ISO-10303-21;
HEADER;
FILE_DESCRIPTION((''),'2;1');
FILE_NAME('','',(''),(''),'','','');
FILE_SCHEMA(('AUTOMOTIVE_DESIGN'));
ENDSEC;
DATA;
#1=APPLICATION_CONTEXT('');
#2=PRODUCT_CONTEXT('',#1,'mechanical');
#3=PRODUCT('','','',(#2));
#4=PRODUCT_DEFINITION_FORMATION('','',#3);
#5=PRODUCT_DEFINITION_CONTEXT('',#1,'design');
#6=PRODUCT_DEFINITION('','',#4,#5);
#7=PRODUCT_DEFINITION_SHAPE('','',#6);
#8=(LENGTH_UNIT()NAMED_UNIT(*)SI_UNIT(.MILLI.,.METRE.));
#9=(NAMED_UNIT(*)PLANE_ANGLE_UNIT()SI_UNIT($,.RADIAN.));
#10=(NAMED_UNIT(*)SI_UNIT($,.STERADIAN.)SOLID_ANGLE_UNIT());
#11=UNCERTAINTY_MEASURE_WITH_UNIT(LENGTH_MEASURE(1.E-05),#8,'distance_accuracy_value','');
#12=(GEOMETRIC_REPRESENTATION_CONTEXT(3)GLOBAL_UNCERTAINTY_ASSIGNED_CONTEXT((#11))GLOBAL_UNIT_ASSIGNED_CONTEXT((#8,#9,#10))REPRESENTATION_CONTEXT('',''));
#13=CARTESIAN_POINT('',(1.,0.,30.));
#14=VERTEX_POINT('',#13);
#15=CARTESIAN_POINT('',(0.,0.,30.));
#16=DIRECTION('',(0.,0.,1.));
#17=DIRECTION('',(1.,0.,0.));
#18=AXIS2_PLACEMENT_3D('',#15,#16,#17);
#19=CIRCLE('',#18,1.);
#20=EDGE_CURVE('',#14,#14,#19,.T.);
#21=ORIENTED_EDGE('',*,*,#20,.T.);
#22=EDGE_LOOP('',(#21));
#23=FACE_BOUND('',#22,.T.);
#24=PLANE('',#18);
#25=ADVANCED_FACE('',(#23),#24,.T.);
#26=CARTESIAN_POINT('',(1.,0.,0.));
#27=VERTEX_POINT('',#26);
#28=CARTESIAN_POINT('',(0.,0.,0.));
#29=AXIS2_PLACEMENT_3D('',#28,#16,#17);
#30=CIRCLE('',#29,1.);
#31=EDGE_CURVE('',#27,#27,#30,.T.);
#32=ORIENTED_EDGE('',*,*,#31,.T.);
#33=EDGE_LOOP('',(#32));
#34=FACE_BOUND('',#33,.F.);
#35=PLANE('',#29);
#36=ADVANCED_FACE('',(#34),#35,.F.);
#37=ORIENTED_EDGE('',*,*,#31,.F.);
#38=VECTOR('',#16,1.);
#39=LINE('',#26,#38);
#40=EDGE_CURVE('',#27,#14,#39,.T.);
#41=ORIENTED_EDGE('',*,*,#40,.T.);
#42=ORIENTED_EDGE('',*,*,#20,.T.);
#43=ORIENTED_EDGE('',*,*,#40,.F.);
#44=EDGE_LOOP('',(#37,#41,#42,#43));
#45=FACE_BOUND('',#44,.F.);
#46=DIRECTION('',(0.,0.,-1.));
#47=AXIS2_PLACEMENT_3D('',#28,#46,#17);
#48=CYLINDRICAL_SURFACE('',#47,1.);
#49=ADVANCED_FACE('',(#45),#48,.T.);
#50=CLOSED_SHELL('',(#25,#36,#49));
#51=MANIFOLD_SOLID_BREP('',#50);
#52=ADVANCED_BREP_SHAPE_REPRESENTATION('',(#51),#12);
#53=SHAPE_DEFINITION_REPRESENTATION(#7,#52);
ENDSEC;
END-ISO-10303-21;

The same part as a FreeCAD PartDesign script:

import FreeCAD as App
import Part
import Sketcher

V = App.Vector
Q = App.Units.Quantity

doc = App.newDocument("Part")
body = doc.addObject("PartDesign::Body", "Body")

sketch1 = doc.addObject("Sketcher::SketchObject", "Sketch")
body.addObject(sketch1)
sketch1.AttachmentSupport = (doc.XY_Plane, [""])
sketch1.MapMode = "FlatFace"
sketch1.addGeometry(Part.Circle(V(0, 0, 0), V(0, 0, 1), 1), False)
sketch1.addConstraint([
    Sketcher.Constraint("Coincident", 0, 3, -1, 1),
    Sketcher.Constraint("Diameter", 0, Q("2 mm")),
])
pad1 = doc.addObject("PartDesign::Pad", "Pad")
body.addObject(pad1)
pad1.Profile = sketch1
pad1.Length = 30

doc.recompute()
